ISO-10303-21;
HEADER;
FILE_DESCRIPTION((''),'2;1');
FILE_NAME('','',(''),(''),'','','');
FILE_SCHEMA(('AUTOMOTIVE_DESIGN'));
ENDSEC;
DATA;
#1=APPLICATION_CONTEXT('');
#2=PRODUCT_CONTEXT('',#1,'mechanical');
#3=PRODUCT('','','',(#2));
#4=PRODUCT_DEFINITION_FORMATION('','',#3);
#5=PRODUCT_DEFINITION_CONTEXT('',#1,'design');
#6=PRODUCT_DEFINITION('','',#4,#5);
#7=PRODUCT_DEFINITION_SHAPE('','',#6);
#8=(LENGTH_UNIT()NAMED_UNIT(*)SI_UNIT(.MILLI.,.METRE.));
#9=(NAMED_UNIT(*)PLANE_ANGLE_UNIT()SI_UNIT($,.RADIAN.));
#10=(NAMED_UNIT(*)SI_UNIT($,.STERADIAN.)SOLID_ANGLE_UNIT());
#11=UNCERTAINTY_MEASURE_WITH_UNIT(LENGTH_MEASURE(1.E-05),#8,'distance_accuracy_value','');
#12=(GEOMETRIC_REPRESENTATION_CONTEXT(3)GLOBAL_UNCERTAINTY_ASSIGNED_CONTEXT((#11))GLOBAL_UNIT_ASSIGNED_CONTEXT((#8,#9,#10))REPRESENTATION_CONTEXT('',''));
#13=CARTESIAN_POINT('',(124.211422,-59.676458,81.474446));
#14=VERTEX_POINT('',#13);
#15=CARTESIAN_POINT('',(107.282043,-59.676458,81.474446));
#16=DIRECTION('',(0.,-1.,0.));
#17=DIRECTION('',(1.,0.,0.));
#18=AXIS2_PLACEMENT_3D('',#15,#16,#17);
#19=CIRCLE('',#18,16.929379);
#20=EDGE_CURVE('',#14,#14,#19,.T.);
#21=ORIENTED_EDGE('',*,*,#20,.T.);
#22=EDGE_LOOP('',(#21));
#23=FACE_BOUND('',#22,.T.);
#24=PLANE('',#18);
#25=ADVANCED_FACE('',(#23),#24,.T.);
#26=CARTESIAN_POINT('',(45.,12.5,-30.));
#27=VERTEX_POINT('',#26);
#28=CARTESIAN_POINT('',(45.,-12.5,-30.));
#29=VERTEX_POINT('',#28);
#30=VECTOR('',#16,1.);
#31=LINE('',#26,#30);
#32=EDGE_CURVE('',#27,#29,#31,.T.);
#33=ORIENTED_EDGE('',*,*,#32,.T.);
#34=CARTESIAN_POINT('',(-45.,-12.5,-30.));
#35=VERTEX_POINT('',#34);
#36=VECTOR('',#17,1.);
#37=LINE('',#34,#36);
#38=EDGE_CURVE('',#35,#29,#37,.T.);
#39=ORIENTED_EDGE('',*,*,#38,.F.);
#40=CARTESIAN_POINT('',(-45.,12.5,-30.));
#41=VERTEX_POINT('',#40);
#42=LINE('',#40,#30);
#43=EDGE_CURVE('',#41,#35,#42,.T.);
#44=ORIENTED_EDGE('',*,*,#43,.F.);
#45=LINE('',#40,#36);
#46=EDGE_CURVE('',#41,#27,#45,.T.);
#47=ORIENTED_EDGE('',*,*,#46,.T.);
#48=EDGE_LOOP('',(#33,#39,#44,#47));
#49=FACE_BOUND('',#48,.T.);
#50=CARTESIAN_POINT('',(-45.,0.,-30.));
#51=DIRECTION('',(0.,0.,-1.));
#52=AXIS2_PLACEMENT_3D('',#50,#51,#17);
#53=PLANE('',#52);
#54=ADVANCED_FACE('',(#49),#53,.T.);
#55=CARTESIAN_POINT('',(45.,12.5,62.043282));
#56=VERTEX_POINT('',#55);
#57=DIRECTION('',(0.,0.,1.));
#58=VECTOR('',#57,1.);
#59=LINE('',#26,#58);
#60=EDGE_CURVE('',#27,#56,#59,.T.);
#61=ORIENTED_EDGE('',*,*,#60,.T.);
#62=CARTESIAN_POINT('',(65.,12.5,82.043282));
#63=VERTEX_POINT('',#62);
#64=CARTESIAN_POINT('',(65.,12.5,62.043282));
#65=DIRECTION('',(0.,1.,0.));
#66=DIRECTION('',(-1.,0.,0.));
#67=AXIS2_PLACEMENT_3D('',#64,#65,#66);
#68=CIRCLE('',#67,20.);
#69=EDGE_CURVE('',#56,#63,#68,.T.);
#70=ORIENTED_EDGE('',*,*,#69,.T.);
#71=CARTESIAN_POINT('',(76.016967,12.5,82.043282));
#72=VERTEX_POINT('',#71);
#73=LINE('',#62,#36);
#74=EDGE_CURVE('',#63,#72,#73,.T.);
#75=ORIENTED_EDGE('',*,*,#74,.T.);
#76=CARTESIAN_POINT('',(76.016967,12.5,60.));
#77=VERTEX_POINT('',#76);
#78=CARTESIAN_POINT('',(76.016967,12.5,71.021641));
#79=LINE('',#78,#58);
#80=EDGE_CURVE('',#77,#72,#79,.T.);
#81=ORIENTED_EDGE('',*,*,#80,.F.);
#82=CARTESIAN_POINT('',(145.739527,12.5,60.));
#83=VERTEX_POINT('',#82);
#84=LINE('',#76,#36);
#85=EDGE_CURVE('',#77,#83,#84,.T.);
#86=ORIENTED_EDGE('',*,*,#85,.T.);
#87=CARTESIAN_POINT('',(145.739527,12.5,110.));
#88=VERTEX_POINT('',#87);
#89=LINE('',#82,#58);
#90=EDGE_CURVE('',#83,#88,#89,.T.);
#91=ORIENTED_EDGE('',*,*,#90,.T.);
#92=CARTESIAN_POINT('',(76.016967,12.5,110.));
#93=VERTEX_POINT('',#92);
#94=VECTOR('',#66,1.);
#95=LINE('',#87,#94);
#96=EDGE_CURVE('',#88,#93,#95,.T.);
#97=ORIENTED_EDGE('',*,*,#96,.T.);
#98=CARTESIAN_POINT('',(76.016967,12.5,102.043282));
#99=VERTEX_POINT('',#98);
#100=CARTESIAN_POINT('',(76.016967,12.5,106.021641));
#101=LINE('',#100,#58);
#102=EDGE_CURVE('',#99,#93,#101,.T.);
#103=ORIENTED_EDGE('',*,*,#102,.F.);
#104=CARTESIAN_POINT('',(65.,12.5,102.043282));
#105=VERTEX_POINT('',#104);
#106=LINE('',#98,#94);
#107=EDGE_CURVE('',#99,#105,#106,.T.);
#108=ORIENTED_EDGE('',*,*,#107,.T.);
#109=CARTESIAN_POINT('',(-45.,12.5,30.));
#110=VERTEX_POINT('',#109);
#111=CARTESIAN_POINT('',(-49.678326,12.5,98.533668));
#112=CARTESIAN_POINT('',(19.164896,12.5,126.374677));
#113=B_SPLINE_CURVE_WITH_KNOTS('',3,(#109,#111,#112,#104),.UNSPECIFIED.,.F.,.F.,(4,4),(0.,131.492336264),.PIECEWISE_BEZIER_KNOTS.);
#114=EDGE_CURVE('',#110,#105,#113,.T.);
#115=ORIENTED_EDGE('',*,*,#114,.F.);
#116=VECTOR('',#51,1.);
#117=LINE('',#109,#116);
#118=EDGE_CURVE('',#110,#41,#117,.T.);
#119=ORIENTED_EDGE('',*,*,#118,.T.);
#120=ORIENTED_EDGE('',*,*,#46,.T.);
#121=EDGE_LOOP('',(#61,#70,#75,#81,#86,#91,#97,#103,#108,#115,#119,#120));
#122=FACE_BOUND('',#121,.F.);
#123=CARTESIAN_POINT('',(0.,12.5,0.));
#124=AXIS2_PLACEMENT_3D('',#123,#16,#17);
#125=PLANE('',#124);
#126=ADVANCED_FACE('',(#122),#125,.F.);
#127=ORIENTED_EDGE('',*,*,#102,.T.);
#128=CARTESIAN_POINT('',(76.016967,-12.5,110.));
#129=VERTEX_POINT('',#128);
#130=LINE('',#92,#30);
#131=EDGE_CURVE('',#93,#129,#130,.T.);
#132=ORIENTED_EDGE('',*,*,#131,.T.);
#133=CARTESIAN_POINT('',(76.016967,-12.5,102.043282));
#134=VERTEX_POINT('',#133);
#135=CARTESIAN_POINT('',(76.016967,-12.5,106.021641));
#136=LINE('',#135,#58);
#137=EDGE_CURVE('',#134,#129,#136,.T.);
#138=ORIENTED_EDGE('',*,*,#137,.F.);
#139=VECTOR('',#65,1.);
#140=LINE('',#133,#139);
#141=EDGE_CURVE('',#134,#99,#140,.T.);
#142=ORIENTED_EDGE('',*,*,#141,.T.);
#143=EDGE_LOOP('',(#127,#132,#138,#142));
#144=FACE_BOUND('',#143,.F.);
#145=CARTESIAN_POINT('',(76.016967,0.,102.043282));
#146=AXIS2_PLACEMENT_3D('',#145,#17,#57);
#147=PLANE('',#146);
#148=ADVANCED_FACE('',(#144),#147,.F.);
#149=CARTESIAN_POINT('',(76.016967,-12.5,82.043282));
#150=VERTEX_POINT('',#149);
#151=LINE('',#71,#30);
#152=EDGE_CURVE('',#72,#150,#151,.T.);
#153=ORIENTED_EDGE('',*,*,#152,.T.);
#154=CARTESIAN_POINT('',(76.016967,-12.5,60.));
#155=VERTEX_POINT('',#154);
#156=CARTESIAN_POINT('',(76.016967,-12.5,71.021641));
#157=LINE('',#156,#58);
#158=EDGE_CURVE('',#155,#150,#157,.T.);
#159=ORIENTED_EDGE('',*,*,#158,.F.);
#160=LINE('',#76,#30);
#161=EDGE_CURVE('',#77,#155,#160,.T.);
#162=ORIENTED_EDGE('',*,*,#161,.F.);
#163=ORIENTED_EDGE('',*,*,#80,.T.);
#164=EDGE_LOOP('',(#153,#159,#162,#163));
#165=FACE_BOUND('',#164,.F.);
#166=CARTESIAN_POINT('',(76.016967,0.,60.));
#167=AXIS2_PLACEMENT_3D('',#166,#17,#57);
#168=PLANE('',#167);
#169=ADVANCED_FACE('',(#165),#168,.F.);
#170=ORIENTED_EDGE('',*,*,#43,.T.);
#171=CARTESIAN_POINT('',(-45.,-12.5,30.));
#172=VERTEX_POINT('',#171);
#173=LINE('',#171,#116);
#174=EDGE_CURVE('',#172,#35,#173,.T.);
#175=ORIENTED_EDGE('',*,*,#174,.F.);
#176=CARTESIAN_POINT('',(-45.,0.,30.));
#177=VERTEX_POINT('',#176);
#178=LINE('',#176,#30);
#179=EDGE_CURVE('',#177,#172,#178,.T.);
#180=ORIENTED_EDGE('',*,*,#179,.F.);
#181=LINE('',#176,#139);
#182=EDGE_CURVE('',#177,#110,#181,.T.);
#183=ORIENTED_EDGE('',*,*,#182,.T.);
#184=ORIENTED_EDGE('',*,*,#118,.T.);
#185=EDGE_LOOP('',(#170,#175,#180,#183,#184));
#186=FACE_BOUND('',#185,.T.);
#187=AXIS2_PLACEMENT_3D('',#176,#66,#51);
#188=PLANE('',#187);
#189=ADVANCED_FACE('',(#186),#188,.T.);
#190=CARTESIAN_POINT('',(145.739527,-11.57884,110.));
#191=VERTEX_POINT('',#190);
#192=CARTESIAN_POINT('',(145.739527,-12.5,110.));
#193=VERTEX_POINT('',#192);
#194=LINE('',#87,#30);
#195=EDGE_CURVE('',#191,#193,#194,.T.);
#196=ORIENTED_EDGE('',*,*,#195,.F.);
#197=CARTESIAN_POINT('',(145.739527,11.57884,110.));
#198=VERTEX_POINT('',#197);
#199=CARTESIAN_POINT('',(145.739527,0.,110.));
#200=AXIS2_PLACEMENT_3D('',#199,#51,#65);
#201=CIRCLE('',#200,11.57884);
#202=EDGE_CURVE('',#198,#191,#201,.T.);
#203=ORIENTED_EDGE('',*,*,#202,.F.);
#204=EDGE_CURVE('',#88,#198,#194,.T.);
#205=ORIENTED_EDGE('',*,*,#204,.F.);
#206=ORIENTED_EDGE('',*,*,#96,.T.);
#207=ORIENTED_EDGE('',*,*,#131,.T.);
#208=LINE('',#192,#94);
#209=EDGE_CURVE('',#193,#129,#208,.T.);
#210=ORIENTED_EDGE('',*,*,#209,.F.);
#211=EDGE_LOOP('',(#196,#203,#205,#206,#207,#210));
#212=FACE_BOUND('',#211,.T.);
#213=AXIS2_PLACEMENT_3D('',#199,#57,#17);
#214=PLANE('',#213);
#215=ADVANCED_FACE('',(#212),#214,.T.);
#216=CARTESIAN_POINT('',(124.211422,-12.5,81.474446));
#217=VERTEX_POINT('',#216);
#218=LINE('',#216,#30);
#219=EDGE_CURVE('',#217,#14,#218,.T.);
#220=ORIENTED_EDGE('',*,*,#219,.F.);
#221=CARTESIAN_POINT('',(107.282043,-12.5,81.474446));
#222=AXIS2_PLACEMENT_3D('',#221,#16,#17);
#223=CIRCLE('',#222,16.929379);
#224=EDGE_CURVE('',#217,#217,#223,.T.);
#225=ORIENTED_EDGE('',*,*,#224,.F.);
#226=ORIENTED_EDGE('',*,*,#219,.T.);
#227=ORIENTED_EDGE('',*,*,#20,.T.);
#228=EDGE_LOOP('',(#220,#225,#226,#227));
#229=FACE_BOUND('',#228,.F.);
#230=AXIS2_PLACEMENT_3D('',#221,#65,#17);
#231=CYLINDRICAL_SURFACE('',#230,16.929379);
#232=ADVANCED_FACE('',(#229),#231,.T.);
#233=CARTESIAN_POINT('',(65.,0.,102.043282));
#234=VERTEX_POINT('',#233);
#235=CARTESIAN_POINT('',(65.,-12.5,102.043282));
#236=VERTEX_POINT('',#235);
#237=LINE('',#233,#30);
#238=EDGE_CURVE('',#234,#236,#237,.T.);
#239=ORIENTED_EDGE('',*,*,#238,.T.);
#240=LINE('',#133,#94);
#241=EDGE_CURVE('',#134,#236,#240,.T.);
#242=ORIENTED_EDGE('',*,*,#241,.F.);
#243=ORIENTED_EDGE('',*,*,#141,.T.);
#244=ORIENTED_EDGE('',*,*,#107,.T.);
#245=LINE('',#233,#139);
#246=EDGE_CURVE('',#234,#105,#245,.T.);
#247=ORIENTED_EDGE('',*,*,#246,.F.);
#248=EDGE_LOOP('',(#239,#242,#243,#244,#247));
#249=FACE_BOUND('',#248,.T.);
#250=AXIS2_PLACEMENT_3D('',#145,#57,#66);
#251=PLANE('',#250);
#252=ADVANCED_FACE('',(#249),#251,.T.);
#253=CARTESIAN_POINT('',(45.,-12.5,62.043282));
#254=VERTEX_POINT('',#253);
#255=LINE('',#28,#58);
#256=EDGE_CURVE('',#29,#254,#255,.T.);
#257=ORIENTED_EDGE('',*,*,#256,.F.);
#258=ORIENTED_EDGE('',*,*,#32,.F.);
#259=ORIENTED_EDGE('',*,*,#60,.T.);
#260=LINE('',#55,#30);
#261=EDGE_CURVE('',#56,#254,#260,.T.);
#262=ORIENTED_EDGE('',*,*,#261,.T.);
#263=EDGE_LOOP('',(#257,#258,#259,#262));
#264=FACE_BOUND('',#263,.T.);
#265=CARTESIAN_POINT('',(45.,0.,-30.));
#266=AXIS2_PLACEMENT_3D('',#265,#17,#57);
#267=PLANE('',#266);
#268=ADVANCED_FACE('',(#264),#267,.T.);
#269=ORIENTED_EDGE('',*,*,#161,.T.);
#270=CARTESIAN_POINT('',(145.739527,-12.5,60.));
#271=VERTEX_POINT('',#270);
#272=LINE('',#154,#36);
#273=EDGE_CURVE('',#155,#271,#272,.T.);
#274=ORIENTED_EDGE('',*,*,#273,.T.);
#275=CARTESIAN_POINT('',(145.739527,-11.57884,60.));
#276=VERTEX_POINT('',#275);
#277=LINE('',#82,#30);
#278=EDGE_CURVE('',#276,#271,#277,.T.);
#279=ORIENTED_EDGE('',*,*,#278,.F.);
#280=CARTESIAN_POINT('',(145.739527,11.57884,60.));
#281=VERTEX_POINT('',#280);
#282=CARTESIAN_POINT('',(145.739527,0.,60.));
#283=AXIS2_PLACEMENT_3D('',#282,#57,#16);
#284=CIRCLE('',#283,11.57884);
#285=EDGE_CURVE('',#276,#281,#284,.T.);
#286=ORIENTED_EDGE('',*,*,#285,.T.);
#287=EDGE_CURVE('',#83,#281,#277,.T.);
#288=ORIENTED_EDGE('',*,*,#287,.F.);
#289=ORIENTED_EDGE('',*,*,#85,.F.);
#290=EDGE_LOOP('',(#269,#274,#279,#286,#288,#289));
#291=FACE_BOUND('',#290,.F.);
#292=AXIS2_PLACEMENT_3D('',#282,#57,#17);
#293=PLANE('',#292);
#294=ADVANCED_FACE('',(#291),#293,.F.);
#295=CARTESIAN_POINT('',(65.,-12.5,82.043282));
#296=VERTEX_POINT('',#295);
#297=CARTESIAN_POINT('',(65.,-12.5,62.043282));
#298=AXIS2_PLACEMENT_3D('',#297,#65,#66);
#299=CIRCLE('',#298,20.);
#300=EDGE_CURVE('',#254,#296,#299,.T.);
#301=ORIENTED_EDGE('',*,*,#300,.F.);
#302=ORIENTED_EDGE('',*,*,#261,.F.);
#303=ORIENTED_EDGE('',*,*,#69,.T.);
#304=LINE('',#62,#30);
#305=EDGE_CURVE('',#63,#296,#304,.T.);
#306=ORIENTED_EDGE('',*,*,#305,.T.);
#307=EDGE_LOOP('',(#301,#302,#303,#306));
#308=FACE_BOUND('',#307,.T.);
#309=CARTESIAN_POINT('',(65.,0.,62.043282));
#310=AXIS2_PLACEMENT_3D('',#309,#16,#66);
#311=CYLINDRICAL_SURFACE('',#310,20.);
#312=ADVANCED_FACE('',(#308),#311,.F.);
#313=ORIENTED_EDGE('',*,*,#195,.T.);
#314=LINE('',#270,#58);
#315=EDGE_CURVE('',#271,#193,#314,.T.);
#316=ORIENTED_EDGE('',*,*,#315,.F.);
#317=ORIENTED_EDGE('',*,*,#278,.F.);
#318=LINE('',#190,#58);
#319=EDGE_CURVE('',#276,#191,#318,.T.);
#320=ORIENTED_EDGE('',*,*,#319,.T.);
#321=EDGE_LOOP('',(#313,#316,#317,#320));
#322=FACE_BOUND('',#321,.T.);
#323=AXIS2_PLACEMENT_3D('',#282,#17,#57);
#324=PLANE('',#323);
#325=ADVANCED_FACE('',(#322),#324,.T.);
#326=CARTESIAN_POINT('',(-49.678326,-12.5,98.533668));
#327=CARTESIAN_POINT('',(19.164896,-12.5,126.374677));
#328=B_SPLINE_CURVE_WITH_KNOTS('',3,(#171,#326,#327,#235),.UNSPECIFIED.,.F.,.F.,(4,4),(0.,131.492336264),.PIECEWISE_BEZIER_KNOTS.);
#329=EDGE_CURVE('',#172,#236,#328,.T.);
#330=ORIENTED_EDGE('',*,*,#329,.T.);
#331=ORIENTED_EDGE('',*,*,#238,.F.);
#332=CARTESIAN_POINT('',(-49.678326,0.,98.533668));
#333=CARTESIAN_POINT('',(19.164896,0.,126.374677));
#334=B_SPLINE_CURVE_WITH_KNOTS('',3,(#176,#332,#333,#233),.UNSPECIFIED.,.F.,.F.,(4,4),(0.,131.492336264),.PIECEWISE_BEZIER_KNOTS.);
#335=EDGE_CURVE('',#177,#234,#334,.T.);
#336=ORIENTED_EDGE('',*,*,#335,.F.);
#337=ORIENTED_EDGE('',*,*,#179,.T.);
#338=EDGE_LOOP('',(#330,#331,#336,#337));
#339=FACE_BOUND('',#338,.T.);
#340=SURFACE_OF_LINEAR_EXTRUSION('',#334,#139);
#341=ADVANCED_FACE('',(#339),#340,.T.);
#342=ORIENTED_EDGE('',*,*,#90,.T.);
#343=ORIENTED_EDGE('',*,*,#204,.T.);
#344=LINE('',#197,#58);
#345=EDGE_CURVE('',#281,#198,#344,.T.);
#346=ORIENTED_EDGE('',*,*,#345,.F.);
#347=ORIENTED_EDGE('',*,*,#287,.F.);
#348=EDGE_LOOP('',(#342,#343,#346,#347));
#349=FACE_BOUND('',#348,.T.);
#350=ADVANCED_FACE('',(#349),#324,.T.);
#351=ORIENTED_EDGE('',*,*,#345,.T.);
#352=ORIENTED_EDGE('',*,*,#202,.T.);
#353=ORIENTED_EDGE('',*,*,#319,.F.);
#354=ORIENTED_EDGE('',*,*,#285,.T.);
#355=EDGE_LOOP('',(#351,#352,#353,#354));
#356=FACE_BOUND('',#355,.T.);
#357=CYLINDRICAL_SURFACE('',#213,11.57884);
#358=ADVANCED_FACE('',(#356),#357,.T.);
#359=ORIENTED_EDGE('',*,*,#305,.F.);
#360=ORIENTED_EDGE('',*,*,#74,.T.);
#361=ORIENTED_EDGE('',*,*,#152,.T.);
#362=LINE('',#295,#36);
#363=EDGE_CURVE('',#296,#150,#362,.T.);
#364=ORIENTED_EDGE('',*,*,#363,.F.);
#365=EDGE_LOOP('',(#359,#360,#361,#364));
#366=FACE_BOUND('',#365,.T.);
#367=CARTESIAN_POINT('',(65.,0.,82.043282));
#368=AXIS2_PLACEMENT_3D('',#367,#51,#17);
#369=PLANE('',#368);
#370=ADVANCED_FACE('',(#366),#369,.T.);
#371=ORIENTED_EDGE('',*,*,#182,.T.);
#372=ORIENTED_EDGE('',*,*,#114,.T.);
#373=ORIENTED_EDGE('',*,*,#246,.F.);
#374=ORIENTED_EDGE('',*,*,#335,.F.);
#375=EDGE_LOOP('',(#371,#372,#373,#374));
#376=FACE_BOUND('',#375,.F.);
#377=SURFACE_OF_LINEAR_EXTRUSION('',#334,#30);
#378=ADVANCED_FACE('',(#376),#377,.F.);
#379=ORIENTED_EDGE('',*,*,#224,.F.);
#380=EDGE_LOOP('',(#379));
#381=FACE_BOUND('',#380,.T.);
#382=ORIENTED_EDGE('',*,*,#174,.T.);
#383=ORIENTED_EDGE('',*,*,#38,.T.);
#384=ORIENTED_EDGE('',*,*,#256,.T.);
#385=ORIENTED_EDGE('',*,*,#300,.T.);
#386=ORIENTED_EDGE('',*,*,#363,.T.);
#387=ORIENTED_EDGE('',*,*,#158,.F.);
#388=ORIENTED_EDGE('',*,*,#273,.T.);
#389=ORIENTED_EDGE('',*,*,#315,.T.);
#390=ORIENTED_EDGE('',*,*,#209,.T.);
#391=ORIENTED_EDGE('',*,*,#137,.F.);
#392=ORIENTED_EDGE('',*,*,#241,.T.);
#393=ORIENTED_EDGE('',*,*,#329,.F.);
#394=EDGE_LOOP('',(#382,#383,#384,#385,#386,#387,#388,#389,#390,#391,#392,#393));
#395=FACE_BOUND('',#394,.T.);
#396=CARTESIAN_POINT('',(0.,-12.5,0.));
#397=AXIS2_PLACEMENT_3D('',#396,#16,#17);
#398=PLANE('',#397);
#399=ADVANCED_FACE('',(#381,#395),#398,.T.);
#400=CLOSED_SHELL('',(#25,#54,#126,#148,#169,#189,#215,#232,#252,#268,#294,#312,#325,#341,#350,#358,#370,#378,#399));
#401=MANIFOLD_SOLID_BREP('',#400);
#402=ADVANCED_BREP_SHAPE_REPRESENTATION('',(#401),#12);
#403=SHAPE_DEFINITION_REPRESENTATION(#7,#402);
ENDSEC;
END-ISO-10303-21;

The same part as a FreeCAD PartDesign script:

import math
import FreeCAD as App
import Part
import Sketcher

V = App.Vector

doc = App.newDocument("Part")
body = doc.addObject("PartDesign::Body", "Body")

sketch1 = body.newObject("Sketcher::SketchObject", "Sketch")
sketch1.AttachmentSupport = (doc.getObject("XZ_Plane"), [""])
sketch1.MapMode = "FlatFace"
sketch1.addGeometry([
    Part.LineSegment(V(-45, 30, 0), V(-45, -30, 0)),
    Part.LineSegment(V(-45, -30, 0), V(45, -30, 0)),
    Part.LineSegment(V(45, -30, 0), V(45, 62.043282, 0)),
    Part.ArcOfCircle(Part.Circle(V(65, 62.043282, 0), V(0, 0, 1), 20), math.radians(90), math.radians(180)),
    Part.LineSegment(V(65, 82.043282, 0), V(76.016967, 82.043282, 0)),
    Part.LineSegment(V(76.016967, 82.043282, 0), V(76.016967, 60, 0)),
    Part.LineSegment(V(76.016967, 60, 0), V(145.739527, 60, 0)),
    Part.LineSegment(V(145.739527, 60, 0), V(145.739527, 110, 0)),
    Part.LineSegment(V(145.739527, 110, 0), V(76.016967, 110, 0)),
    Part.LineSegment(V(76.016967, 110, 0), V(76.016967, 102.043282, 0)),
    Part.LineSegment(V(76.016967, 102.043282, 0), V(65, 102.043282, 0)),
    Part.BSplineCurve([V(-45, 30, 0), V(-49.678326, 98.533668, 0), V(19.164896, 126.374677, 0), V(65, 102.043282, 0)], [4, 4], [0, 131.492336264], False, 3, [1, 1, 1, 1], False),
], False)
sketch1.addConstraint([
    Sketcher.Constraint("Block", 11),
    Sketcher.Constraint("Coincident", 0, 2, 1, 1),
    Sketcher.Constraint("Coincident", 1, 2, 2, 1),
    Sketcher.Constraint("Tangent", 2, 2, 3, 2),
    Sketcher.Constraint("Tangent", 3, 1, 4, 1),
    Sketcher.Constraint("Coincident", 4, 2, 5, 1),
    Sketcher.Constraint("Coincident", 5, 2, 6, 1),
    Sketcher.Constraint("Coincident", 6, 2, 7, 1),
    Sketcher.Constraint("Coincident", 7, 2, 8, 1),
    Sketcher.Constraint("Coincident", 8, 2, 9, 1),
    Sketcher.Constraint("Coincident", 9, 2, 10, 1),
    Sketcher.Constraint("Coincident", 10, 2, 11, 2),
    Sketcher.Constraint("Coincident", 11, 1, 0, 1),
    Sketcher.Constraint("Vertical", 0),
    Sketcher.Constraint("Horizontal", 1),
    Sketcher.Constraint("Vertical", 2),
    Sketcher.Constraint("Horizontal", 4),
    Sketcher.Constraint("Vertical", 5),
    Sketcher.Constraint("Horizontal", 6),
    Sketcher.Constraint("Vertical", 7),
    Sketcher.Constraint("Horizontal", 8),
    Sketcher.Constraint("Vertical", 9),
    Sketcher.Constraint("Horizontal", 10),
    Sketcher.Constraint("Vertical", 5, 2, 8, 2),
    Sketcher.Constraint("Vertical", 3, 1, 10, 2),
    Sketcher.Constraint("Radius", 3, 20.0),
    Sketcher.Constraint("DistanceY", 0, 2, 0, 1, 60.0),
    Sketcher.Constraint("DistanceY", 7, 1, 7, 2, 50.0),
    Sketcher.Constraint("DistanceY", -1, 1, 5, 2, 60.0),
    Sketcher.Constraint("DistanceY", 4, 2, 9, 2, 20.0),
    Sketcher.Constraint("DistanceX", 6, 1, 6, 2, 69.72256),
    Sketcher.Constraint("DistanceX", 4, 1, 4, 2, 11.016967),
])
pad1 = body.newObject("PartDesign::Pad", "Pad")
pad1.Profile = sketch1
pad1.Length = 25
pad1.Midplane = True

sketch2 = body.newObject("Sketcher::SketchObject", "Sketch001")
sketch2.AttachmentSupport = (doc.getObject("XY_Plane"), [""])
sketch2.MapMode = "FlatFace"
sketch2.AttachmentOffset = App.Placement(V(0, 0, 110), App.Rotation())
sketch2.addGeometry(Part.Circle(V(145.739527, 0, 0), V(0, 0, 1), 11.57884), False)
sketch2.addConstraint([
    Sketcher.Constraint("PointOnObject", 0, 3, -1),
    Sketcher.Constraint("Diameter", 0, 23.157679),
    Sketcher.Constraint("DistanceX", -1, 1, 0, 3, 145.739527),
])
pad2 = body.newObject("PartDesign::Pad", "Pad001")
pad2.Profile = sketch2
pad2.Length = 50
pad2.Reversed = True

sketch3 = body.newObject("Sketcher::SketchObject", "Sketch002")
sketch3.AttachmentSupport = (doc.getObject("XZ_Plane"), [""])
sketch3.MapMode = "FlatFace"
sketch3.AttachmentOffset = App.Placement(V(0, 0, 12.5), App.Rotation())
sketch3.addGeometry(Part.Circle(V(107.282043, 81.474446, 0), V(0, 0, 1), 16.929379), False)
sketch3.addConstraint([
    Sketcher.Constraint("Diameter", 0, 33.858758),
    Sketcher.Constraint("DistanceX", -1, 1, 0, 3, 107.282043),
    Sketcher.Constraint("DistanceY", -1, 1, 0, 3, 81.474446),
])
pad3 = body.newObject("PartDesign::Pad", "Pad002")
pad3.Profile = sketch3
pad3.Length = 47.176458

doc.recompute()
